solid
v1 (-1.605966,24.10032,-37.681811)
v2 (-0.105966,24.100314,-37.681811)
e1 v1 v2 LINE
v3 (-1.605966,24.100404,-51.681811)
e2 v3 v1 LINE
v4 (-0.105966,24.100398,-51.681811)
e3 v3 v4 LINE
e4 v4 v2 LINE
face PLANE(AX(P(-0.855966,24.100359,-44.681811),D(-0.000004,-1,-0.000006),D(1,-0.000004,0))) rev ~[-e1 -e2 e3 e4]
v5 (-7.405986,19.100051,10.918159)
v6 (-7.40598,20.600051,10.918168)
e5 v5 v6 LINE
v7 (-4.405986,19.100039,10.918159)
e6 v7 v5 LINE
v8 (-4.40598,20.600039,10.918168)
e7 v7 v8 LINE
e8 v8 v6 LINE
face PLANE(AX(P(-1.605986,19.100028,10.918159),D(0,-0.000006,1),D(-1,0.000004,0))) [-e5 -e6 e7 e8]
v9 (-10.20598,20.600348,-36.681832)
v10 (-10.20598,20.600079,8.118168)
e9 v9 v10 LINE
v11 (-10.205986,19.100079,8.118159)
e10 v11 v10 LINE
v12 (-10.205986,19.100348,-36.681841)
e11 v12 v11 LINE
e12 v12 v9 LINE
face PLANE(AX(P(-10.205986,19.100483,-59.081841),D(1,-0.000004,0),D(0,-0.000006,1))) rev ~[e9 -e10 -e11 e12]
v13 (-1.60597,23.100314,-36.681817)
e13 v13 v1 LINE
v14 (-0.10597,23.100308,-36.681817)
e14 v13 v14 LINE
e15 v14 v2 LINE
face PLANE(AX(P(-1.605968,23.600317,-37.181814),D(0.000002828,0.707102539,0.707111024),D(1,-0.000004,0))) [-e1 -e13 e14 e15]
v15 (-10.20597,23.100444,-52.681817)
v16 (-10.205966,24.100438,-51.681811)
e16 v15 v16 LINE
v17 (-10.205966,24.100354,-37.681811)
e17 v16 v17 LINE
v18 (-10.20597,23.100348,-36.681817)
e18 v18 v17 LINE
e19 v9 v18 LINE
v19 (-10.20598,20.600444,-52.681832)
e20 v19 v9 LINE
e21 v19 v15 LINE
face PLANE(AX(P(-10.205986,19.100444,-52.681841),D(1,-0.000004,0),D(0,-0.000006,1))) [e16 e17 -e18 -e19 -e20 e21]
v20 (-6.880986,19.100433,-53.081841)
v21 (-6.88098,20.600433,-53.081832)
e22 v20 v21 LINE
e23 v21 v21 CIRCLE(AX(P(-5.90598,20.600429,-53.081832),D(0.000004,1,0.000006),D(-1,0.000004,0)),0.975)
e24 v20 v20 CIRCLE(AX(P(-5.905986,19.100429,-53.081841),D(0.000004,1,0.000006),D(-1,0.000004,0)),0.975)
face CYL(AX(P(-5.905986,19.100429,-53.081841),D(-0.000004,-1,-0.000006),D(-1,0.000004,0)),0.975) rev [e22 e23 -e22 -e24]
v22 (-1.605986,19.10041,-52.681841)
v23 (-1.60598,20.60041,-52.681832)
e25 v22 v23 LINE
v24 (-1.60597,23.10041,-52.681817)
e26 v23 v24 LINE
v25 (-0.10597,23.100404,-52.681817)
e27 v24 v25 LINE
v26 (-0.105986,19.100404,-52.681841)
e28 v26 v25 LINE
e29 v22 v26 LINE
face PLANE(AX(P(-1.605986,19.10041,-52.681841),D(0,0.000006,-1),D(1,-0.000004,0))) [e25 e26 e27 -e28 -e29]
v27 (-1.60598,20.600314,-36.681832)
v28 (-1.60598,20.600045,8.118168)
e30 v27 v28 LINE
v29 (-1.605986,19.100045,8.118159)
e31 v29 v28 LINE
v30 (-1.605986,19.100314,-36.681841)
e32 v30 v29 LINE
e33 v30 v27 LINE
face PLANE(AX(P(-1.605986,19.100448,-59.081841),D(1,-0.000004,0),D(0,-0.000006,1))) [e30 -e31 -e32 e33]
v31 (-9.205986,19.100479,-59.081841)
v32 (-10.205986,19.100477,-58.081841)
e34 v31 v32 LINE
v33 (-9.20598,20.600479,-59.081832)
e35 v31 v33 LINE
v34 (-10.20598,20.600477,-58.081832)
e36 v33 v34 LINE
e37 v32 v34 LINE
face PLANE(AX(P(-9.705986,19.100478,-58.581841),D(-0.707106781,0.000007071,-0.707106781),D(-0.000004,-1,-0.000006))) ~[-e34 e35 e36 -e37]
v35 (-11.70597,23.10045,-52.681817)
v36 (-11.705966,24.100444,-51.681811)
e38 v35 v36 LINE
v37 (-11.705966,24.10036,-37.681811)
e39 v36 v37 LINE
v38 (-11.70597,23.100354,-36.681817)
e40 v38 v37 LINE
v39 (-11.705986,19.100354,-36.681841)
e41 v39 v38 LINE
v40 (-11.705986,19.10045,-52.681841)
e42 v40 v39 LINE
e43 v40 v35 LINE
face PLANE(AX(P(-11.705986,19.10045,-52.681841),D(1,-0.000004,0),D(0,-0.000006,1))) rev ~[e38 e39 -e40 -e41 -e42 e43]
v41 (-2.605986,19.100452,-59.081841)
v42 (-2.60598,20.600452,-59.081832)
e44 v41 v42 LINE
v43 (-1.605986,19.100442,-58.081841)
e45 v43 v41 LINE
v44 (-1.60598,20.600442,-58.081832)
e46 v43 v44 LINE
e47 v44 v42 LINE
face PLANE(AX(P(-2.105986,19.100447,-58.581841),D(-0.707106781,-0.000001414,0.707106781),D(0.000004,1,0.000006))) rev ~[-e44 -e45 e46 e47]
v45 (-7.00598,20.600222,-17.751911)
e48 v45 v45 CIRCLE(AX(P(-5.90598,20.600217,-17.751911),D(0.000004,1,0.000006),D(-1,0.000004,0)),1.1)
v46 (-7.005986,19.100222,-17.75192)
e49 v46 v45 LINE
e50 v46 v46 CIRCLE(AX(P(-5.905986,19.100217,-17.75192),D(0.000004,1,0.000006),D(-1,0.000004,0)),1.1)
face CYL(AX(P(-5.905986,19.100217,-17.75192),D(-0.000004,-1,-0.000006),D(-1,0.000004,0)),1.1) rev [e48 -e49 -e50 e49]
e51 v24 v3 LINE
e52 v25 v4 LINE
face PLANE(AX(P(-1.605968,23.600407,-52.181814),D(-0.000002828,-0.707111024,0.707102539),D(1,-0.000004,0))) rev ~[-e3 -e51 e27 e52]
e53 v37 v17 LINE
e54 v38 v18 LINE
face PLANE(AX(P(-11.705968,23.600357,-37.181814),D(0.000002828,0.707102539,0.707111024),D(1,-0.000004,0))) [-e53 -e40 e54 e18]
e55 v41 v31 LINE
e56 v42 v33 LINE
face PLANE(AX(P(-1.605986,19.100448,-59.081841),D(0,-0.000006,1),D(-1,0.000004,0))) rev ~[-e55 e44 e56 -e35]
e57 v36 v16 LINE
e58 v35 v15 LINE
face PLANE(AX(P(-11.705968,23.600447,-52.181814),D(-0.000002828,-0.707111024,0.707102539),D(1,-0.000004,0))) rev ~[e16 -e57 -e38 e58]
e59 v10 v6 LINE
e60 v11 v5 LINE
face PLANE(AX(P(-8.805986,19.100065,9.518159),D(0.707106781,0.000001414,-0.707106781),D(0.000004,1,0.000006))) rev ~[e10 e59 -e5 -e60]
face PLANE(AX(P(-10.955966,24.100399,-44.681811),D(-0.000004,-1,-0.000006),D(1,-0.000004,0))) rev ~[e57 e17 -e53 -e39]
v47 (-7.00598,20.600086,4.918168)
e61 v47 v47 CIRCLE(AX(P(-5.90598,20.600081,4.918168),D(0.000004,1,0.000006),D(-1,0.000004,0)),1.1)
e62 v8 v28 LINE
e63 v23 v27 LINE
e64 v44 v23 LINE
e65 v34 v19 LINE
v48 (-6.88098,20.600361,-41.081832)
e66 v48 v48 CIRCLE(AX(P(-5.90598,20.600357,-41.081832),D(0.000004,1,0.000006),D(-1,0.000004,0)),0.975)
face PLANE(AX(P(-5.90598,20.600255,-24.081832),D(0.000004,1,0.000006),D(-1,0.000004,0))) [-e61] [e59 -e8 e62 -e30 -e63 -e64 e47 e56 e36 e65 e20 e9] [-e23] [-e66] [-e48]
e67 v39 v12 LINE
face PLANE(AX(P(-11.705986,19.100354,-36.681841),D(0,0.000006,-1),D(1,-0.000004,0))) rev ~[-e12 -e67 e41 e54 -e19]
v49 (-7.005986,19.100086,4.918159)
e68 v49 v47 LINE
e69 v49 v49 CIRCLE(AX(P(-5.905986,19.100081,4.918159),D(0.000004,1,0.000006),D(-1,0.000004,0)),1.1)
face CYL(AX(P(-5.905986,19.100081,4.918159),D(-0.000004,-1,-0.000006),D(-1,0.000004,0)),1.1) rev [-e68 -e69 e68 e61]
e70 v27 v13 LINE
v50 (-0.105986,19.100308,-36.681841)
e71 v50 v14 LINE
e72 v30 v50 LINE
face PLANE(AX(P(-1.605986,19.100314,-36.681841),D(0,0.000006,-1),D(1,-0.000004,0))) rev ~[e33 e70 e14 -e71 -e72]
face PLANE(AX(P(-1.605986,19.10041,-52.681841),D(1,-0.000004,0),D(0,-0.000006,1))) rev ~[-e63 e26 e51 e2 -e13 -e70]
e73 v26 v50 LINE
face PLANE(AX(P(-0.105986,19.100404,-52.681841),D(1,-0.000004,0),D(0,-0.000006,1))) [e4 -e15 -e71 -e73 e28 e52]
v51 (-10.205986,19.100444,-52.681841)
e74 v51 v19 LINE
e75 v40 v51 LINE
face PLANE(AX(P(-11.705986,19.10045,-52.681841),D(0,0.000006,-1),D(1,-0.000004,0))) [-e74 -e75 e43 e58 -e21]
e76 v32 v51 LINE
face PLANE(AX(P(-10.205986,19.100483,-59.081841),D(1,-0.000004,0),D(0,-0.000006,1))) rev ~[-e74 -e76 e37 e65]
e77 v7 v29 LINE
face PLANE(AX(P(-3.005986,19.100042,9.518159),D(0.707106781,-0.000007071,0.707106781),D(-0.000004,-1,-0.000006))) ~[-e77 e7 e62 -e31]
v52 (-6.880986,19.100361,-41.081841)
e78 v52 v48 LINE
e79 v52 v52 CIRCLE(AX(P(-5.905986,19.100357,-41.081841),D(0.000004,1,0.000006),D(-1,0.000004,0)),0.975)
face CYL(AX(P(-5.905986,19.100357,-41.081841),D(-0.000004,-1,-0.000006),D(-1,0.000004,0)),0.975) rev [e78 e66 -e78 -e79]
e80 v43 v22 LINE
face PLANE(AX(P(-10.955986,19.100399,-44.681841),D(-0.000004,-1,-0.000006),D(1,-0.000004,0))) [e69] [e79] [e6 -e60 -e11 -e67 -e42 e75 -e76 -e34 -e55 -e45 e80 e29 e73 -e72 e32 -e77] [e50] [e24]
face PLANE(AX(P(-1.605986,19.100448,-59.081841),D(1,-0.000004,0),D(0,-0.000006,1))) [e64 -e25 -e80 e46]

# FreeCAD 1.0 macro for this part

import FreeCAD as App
import Part
import Sketcher


def edges_at(feature, points):
    """Names of the edges that pass closest to the given points."""
    edges = feature.Shape.Edges
    near = lambda p: min(range(len(edges)), key=lambda i: edges[i].distToShape(Part.Vertex(*p))[0])
    return sorted({f"Edge{near(p) + 1}" for p in points})

doc = App.newDocument("Part")
body = doc.addObject("PartDesign::Body", "Body")

sketch1 = body.newObject("Sketcher::SketchObject", "Sketch")
sketch1.AttachmentSupport = (doc.getObject("XZ_Plane"), [""])
sketch1.MapMode = "FlatFace"
sketch1.AttachmentOffset = App.Placement(App.Vector(0, 0, 19.1), App.Rotation())
sketch1.addGeometry([
    Part.LineSegment(App.Vector(7.8, 0.5, 0), App.Vector(7.8, -69.5, 0)),
    Part.LineSegment(App.Vector(7.8, -69.5, 0), App.Vector(16.4, -69.5, 0)),
    Part.LineSegment(App.Vector(16.4, -69.5, 0), App.Vector(16.4, 0.5, 0)),
    Part.LineSegment(App.Vector(16.4, 0.5, 0), App.Vector(7.8, 0.5, 0)),
    Part.Circle(App.Vector(12.1, -63.5, 0), App.Vector(0, 0, 1), 1),
    Part.Circle(App.Vector(12.1, -51.5, 0), App.Vector(0, 0, 1), 1),
    Part.Circle(App.Vector(12.1, -28.2, 0), App.Vector(0, 0, 1), 1.1),
    Part.Circle(App.Vector(12.1, -5.5, 0), App.Vector(0, 0, 1), 1.1),
], False)
sketch1.addConstraint([
    Sketcher.Constraint("Coincident", 0, 2, 1, 1),
    Sketcher.Constraint("Coincident", 1, 2, 2, 1),
    Sketcher.Constraint("Coincident", 2, 2, 3, 1),
    Sketcher.Constraint("Coincident", 3, 2, 0, 1),
    Sketcher.Constraint("Vertical", 0),
    Sketcher.Constraint("Horizontal", 1),
    Sketcher.Constraint("Vertical", 2),
    Sketcher.Constraint("Horizontal", 3),
    Sketcher.Constraint("Equal", 4, 5),
    Sketcher.Constraint("Equal", 6, 7),
    Sketcher.Constraint("Vertical", 4, 3, 5, 3),
    Sketcher.Constraint("Vertical", 5, 3, 6, 3),
    Sketcher.Constraint("Vertical", 6, 3, 7, 3),
    Sketcher.Constraint("Diameter", 6, 2.2),
    Sketcher.Constraint("Diameter", 4, 1.95),
    Sketcher.Constraint("DistanceY", 0, 2, 0, 1, 70.0),
    Sketcher.Constraint("DistanceX", 1, 1, 1, 2, 8.6),
    Sketcher.Constraint("DistanceY", 4, 3, 5, 3, 12.0),
    Sketcher.Constraint("DistanceY", 5, 3, 7, 3, 46.0),
    Sketcher.Constraint("DistanceY", 0, 2, 4, 3, 6.0),
    Sketcher.Constraint("DistanceX", 0, 2, 4, 3, 4.3),
    Sketcher.Constraint("DistanceY", 4, 3, -1, 1, 63.481841),
    Sketcher.Constraint("DistanceY", 6, 3, -1, 1, 28.15192),
    Sketcher.Constraint("DistanceX", -1, 1, 4, 3, 12.105986),
])
pad1 = body.newObject("PartDesign::Pad", "Pad")
pad1.Profile = sketch1
pad1.Length = 1.5

sketch2 = body.newObject("Sketcher::SketchObject", "Sketch001")
sketch2.AttachmentSupport = (doc.getObject("XZ_Plane"), [""])
sketch2.MapMode = "FlatFace"
sketch2.AttachmentOffset = App.Placement(App.Vector(0, 0, 19.1), App.Rotation())
sketch2.addGeometry([
    Part.LineSegment(App.Vector(17.9, -47.1, 0), App.Vector(17.9, -63.1, 0)),
    Part.LineSegment(App.Vector(17.9, -63.1, 0), App.Vector(16.4, -63.1, 0)),
    Part.LineSegment(App.Vector(16.4, -63.1, 0), App.Vector(16.4, -47.1, 0)),
    Part.LineSegment(App.Vector(16.4, -47.1, 0), App.Vector(17.9, -47.1, 0)),
    Part.LineSegment(App.Vector(7.8, -47.1, 0), App.Vector(7.8, -63.1, 0)),
    Part.LineSegment(App.Vector(7.8, -63.1, 0), App.Vector(6.3, -63.1, 0)),
    Part.LineSegment(App.Vector(6.3, -63.1, 0), App.Vector(6.3, -47.1, 0)),
    Part.LineSegment(App.Vector(6.3, -47.1, 0), App.Vector(7.8, -47.1, 0)),
], False)
sketch2.addConstraint([
    Sketcher.Constraint("Coincident", 0, 2, 1, 1),
    Sketcher.Constraint("Coincident", 1, 2, 2, 1),
    Sketcher.Constraint("Coincident", 2, 2, 3, 1),
    Sketcher.Constraint("Coincident", 3, 2, 0, 1),
    Sketcher.Constraint("Coincident", 4, 2, 5, 1),
    Sketcher.Constraint("Coincident", 5, 2, 6, 1),
    Sketcher.Constraint("Coincident", 6, 2, 7, 1),
    Sketcher.Constraint("Coincident", 7, 2, 4, 1),
    Sketcher.Constraint("Vertical", 0),
    Sketcher.Constraint("Horizontal", 1),
    Sketcher.Constraint("Vertical", 2),
    Sketcher.Constraint("Horizontal", 3),
    Sketcher.Constraint("Vertical", 4),
    Sketcher.Constraint("Horizontal", 5),
    Sketcher.Constraint("Vertical", 6),
    Sketcher.Constraint("Horizontal", 7),
    Sketcher.Constraint("Horizontal", 1, 2, 4, 2),
    Sketcher.Constraint("Horizontal", 3, 2, 6, 2),
    Sketcher.Constraint("Equal", 3, 5),
    Sketcher.Constraint("DistanceY", 0, 2, 0, 1, 16.0),
    Sketcher.Constraint("DistanceX", 1, 2, 1, 1, 1.5),
    Sketcher.Constraint("DistanceX", 4, 2, 1, 2, 8.6),
    Sketcher.Constraint("DistanceY", 0, 2, -1, 1, 63.081841),
    Sketcher.Constraint("DistanceX", -1, 1, 0, 2, 17.905986),
])
pad2 = body.newObject("PartDesign::Pad", "Pad001")
pad2.Profile = sketch2
pad2.Length = 5
doc.recompute()

chamfer = body.newObject("PartDesign::Chamfer", "Chamfer")
chamfer.Base = (pad2, edges_at(pad2, [(16.406, -19.85, 0.518), (7.806, -19.85, 0.518)]))
chamfer.Size = 2.8
doc.recompute()

chamfer2 = body.newObject("PartDesign::Chamfer", "Chamfer001")
chamfer2.Base = (chamfer, edges_at(chamfer, [
    (17.156, -24.1, -47.082),
    (17.156, -24.1, -63.082),
    (7.056, -24.1, -63.082),
    (7.056, -24.1, -47.082),
    (16.406, -19.85, -69.482),
    (7.806, -19.85, -69.482),
]))
chamfer2.Size = 1
body2 = doc.addObject("PartDesign::Body", "Body001")
doc.recompute()

body.Placement = App.Placement(App.Vector(6.2, 0, 10.4), App.Rotation(App.Vector(0, 0, 1), 180))
boolean = body2.newObject("PartDesign::Boolean", "Boolean")
boolean.Type = "Fuse"
boolean.addObjects([body])

doc.recompute()
